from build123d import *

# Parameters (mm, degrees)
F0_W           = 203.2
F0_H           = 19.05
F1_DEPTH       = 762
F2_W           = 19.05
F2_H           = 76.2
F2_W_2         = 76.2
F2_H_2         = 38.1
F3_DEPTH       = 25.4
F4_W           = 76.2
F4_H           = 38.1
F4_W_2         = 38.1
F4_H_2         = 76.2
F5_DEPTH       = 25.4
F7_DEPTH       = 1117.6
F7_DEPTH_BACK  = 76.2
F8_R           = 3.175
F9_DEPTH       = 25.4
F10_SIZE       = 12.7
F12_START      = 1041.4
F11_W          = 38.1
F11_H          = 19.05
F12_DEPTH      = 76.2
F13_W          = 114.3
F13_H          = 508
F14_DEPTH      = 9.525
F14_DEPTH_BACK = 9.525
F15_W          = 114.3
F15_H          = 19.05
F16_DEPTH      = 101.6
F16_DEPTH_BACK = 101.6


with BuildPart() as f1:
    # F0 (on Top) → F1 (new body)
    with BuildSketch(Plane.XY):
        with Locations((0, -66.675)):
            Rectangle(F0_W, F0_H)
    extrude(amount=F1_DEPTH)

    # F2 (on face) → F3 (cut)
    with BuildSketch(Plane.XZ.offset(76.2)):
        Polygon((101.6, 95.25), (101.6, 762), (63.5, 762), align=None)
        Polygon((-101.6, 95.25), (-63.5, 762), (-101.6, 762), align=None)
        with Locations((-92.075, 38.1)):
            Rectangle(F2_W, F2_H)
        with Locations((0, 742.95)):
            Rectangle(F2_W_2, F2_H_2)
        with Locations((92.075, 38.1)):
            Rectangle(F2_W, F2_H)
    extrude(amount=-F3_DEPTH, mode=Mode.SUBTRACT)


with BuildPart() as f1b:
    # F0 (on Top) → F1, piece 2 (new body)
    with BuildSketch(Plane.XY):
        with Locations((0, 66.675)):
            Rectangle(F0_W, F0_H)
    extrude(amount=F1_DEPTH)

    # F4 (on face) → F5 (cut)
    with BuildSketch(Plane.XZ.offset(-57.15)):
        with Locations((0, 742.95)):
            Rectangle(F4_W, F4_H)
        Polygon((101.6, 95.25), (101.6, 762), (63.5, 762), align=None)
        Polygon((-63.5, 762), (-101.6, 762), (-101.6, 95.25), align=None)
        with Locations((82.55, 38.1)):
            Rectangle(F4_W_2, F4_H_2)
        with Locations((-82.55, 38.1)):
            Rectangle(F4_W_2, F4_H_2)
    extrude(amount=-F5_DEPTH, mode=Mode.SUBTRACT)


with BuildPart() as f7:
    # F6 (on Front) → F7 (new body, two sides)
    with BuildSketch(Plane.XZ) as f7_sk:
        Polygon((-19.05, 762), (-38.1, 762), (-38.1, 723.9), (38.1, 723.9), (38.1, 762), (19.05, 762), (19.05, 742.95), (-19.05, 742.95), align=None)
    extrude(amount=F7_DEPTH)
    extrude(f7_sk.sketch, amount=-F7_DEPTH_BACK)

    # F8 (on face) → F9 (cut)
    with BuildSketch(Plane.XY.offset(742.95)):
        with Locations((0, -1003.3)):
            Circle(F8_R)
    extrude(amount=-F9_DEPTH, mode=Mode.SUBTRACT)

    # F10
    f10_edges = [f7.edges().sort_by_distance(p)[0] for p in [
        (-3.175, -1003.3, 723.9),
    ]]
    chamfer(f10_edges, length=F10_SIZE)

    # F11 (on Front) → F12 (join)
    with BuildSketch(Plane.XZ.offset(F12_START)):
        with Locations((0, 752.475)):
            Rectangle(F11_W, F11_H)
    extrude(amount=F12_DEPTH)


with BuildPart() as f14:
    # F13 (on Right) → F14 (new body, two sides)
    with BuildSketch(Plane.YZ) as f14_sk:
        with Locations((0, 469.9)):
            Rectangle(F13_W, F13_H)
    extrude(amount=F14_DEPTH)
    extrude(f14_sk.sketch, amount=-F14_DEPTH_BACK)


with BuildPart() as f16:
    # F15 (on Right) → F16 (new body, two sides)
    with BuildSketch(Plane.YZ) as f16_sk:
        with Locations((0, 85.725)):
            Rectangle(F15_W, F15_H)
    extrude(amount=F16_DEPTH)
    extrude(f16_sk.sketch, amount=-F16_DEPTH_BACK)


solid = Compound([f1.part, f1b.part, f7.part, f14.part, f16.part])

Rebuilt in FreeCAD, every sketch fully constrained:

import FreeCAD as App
import Part
import Sketcher

V = App.Vector
Q = App.Units.Quantity


def edges_at(feature, points):
    """Names of the edges that pass closest to the given points."""
    edges = feature.Shape.Edges
    near = lambda p: min(range(len(edges)), key=lambda i: edges[i].distToShape(Part.Vertex(*p))[0])
    return sorted({f"Edge{near(p) + 1}" for p in points})


def add_polygon(sketch, points):
    """Adds a closed chain of lines whose ends are joined by coincident constraints."""
    first, n = sketch.GeometryCount, len(points)
    for a, b in zip(points, points[1:] + points[:1]):
        sketch.addGeometry(Part.LineSegment(App.Vector(*a, 0), App.Vector(*b, 0)), False)
    for i in range(n):
        sketch.addConstraint(Sketcher.Constraint("Coincident", first + i, 2, first + (i + 1) % n, 1))

doc = App.newDocument("Part")
body = doc.addObject("PartDesign::Body", "Body")

# Sketch on XY plane
sketch1 = body.newObject("Sketcher::SketchObject", "Sketch")
sketch1.AttachmentSupport = (doc.getObject("XY_Plane"), [""])
sketch1.MapMode = "FlatFace"
add_polygon(sketch1, [(-102, -57), (-102, -76), (102, -76), (102, -57)])  # lines 0-3
sketch1.addConstraint([
    Sketcher.Constraint("Vertical", 0),
    Sketcher.Constraint("Horizontal", 1),
    Sketcher.Constraint("Vertical", 2),
    Sketcher.Constraint("Horizontal", 3),
    Sketcher.Constraint("DistanceX", 1, 1, 1, 2, Q("8 in")),
    Sketcher.Constraint("DistanceX", 0, 2, -1, 1, Q("4 in")),
    Sketcher.Constraint("DistanceY", 0, 2, -1, 1, Q("3 in")),
    Sketcher.Constraint("DistanceY", 0, 2, 0, 1, Q("0.75 in")),
])
pad1 = body.newObject("PartDesign::Pad", "Pad")
pad1.Profile = sketch1
pad1.Length = Q("30 in")

# Sketch on XZ plane
sketch2 = body.newObject("Sketcher::SketchObject", "Sketch001")
sketch2.AttachmentSupport = (doc.getObject("XZ_Plane"), [""])
sketch2.MapMode = "FlatFace"
sketch2.AttachmentOffset = App.Placement(V(0, 0, 3 * 25.4), App.Rotation())
add_polygon(sketch2, [(102, 95), (102, 762), (64, 762)])  # lines 0-2
add_polygon(sketch2, [(-102, 95), (-64, 762), (-102, 762)])  # lines 3-5
add_polygon(sketch2, [(-102, 76), (-102, 0), (-83, 0), (-83, 76)])  # lines 6-9
add_polygon(sketch2, [(-38, 762), (-38, 724), (38, 724), (38, 762)])  # lines 10-13
add_polygon(sketch2, [(83, 76), (83, 0), (102, 0), (102, 76)])  # lines 14-17
sketch2.addConstraint([
    Sketcher.Constraint("Vertical", 0),
    Sketcher.Constraint("Horizontal", 1),
    Sketcher.Constraint("Horizontal", 4),
    Sketcher.Constraint("Vertical", 5),
    Sketcher.Constraint("Vertical", 6),
    Sketcher.Constraint("Horizontal", 7),
    Sketcher.Constraint("Vertical", 8),
    Sketcher.Constraint("Horizontal", 9),
    Sketcher.Constraint("Vertical", 10),
    Sketcher.Constraint("Horizontal", 11),
    Sketcher.Constraint("Vertical", 12),
    Sketcher.Constraint("Horizontal", 13),
    Sketcher.Constraint("Vertical", 14),
    Sketcher.Constraint("Horizontal", 15),
    Sketcher.Constraint("Vertical", 16),
    Sketcher.Constraint("Horizontal", 17),
    Sketcher.Constraint("Symmetric", 7, 2, 14, 2, -1, 1),
    Sketcher.Constraint("Symmetric", 1, 2, 3, 2, -2),
    Sketcher.Constraint("Symmetric", 2, 2, 5, 2, -2),
    Sketcher.Constraint("Symmetric", 6, 2, 15, 2, -2),
    Sketcher.Constraint("Horizontal", 4, 2, 12, 2),
    Sketcher.Constraint("Horizontal", 9, 2, 16, 2),
    Sketcher.Constraint("Vertical", 5, 2, 6, 2),
    Sketcher.Constraint("Equal", 13, 6),
    Sketcher.Constraint("Equal", 4, 10),
    Sketcher.Constraint("DistanceX", 11, 1, 11, 2, Q("3 in")),
    Sketcher.Constraint("DistanceX", 1, 2, 1, 1, Q("1.5 in")),
    Sketcher.Constraint("DistanceX", -1, 1, 0, 2, Q("4 in")),
    Sketcher.Constraint("DistanceY", -1, 1, 0, 2, Q("30 in")),
    Sketcher.Constraint("DistanceX", 3, 2, 10, 2, Q("1 in")),
    Sketcher.Constraint("DistanceX", 7, 1, 7, 2, Q("0.75 in")),
    Sketcher.Constraint("DistanceY", 0, 1, 0, 2, Q("26.25 in")),
])
pocket1 = body.newObject("PartDesign::Pocket", "Pocket")
pocket1.Profile = sketch2
pocket1.Length = Q("1 in")
body2 = doc.addObject("PartDesign::Body", "Body001")

# Sketch on XY plane
sketch3 = body2.newObject("Sketcher::SketchObject", "Sketch002")
sketch3.AttachmentSupport = (doc.getObject("XY_Plane001"), [""])
sketch3.MapMode = "FlatFace"
add_polygon(sketch3, [(-102, 76), (-102, 57), (102, 57), (102, 76)])  # lines 0-3
sketch3.addConstraint([
    Sketcher.Constraint("Vertical", 0),
    Sketcher.Constraint("Horizontal", 1),
    Sketcher.Constraint("Vertical", 2),
    Sketcher.Constraint("Horizontal", 3),
    Sketcher.Constraint("DistanceX", 1, 1, 1, 2, Q("8 in")),
    Sketcher.Constraint("DistanceX", 0, 2, -1, 1, Q("4 in")),
    Sketcher.Constraint("DistanceY", -1, 1, 2, 2, Q("3 in")),
    Sketcher.Constraint("DistanceY", 0, 2, 0, 1, Q("0.75 in")),
])
pad2 = body2.newObject("PartDesign::Pad", "Pad001")
pad2.Profile = sketch3
pad2.Length = Q("30 in")

# Sketch on XZ plane
sketch4 = body2.newObject("Sketcher::SketchObject", "Sketch003")
sketch4.AttachmentSupport = (doc.getObject("XZ_Plane001"), [""])
sketch4.MapMode = "FlatFace"
sketch4.AttachmentOffset = App.Placement(V(0, 0, -2.25 * 25.4), App.Rotation())
add_polygon(sketch4, [(-38, 762), (-38, 724), (38, 724), (38, 762)])  # lines 0-3
add_polygon(sketch4, [(102, 95), (102, 762), (64, 762)])  # lines 4-6
add_polygon(sketch4, [(-64, 762), (-102, 762), (-102, 95)])  # lines 7-9
add_polygon(sketch4, [(64, 76), (64, 0), (102, 0), (102, 76)])  # lines 10-13
add_polygon(sketch4, [(-102, 76), (-102, 0), (-64, 0), (-64, 76)])  # lines 14-17
sketch4.addConstraint([
    Sketcher.Constraint("Vertical", 0),
    Sketcher.Constraint("Horizontal", 1),
    Sketcher.Constraint("Vertical", 2),
    Sketcher.Constraint("Horizontal", 3),
    Sketcher.Constraint("Vertical", 4),
    Sketcher.Constraint("Horizontal", 5),
    Sketcher.Constraint("Horizontal", 7),
    Sketcher.Constraint("Vertical", 8),
    Sketcher.Constraint("Vertical", 10),
    Sketcher.Constraint("Horizontal", 11),
    Sketcher.Constraint("Vertical", 12),
    Sketcher.Constraint("Horizontal", 13),
    Sketcher.Constraint("Vertical", 14),
    Sketcher.Constraint("Horizontal", 15),
    Sketcher.Constraint("Vertical", 16),
    Sketcher.Constraint("Horizontal", 17),
    Sketcher.Constraint("Symmetric", 11, 2, 14, 2, -1, 1),
    Sketcher.Constraint("Symmetric", 4, 2, 7, 2, -2),
    Sketcher.Constraint("Symmetric", 10, 2, 15, 2, -2),
    Sketcher.Constraint("Horizontal", 3, 2, 4, 2),
    Sketcher.Constraint("Horizontal", 6, 2, 8, 2),
    Sketcher.Constraint("Horizontal", 13, 2, 16, 2),
    Sketcher.Constraint("Vertical", 5, 2, 10, 2),
    Sketcher.Constraint("Vertical", 6, 2, 11, 2),
    Sketcher.Constraint("Vertical", 9, 2, 15, 2),
    Sketcher.Constraint("Equal", 17, 0),
    Sketcher.Constraint("Equal", 3, 10),
    Sketcher.Constraint("DistanceX", 1, 1, 1, 2, Q("3 in")),
    Sketcher.Constraint("DistanceX", 5, 2, 5, 1, Q("1.5 in")),
    Sketcher.Constraint("DistanceY", -1, 1, 2, 2, Q("30 in")),
    Sketcher.Constraint("DistanceX", -1, 1, 4, 2, Q("4 in")),
    Sketcher.Constraint("DistanceX", 2, 2, 5, 2, Q("1 in")),
    Sketcher.Constraint("DistanceY", 4, 1, 4, 2, Q("26.25 in")),
])
pocket2 = body2.newObject("PartDesign::Pocket", "Pocket001")
pocket2.Profile = sketch4
pocket2.Length = Q("1 in")
body3 = doc.addObject("PartDesign::Body", "Body002")

# Sketch on XZ plane
sketch5 = body3.newObject("Sketcher::SketchObject", "Sketch004")
sketch5.AttachmentSupport = (doc.getObject("XZ_Plane002"), [""])
sketch5.MapMode = "FlatFace"
add_polygon(sketch5, [(-19, 762), (-38, 762), (-38, 724), (38, 724), (38, 762), (19, 762), (19, 743), (-19, 743)])  # lines 0-7
sketch5.addConstraint([
    Sketcher.Constraint("Horizontal", 0),
    Sketcher.Constraint("Vertical", 1),
    Sketcher.Constraint("Horizontal", 2),
    Sketcher.Constraint("Vertical", 3),
    Sketcher.Constraint("Horizontal", 4),
    Sketcher.Constraint("Vertical", 5),
    Sketcher.Constraint("Horizontal", 6),
    Sketcher.Constraint("Vertical", 7),
    Sketcher.Constraint("Symmetric", 0, 2, 3, 2, -2),
    Sketcher.Constraint("Equal", 0, 4),
    Sketcher.Constraint("Equal", 6, 1),
    Sketcher.Constraint("Equal", 4, 5),
    Sketcher.Constraint("DistanceX", 2, 1, 2, 2, Q("3 in")),
    Sketcher.Constraint("DistanceX", 6, 2, 6, 1, Q("1.5 in")),
    Sketcher.Constraint("DistanceY", -1, 1, 0, 2, Q("30 in")),
])
pad3 = body3.newObject("PartDesign::Pad", "Pad002")
pad3.Profile = sketch5
pad3.Type = "TwoLengths"
pad3.Length = Q("44 in")
pad3.Length2 = Q("3 in")

# Sketch on XY plane
sketch6 = body3.newObject("Sketcher::SketchObject", "Sketch005")
sketch6.AttachmentSupport = (doc.getObject("XY_Plane002"), [""])
sketch6.MapMode = "FlatFace"
sketch6.AttachmentOffset = App.Placement(V(0, 0, 29.25 * 25.4), App.Rotation())
sketch6.addGeometry(Part.Circle(V(0, -1003.3, 0), V(0, 0, 1), 3.2), False)
sketch6.addConstraint([
    Sketcher.Constraint("PointOnObject", 0, 3, -2),
    Sketcher.Constraint("Diameter", 0, Q("0.25 in")),
    Sketcher.Constraint("DistanceY", 0, 3, -1, 1, Q("39.5 in")),
])
pocket3 = body3.newObject("PartDesign::Pocket", "Pocket002")
pocket3.Profile = sketch6
pocket3.Length = Q("1 in")
doc.recompute()

chamfer = body3.newObject("PartDesign::Chamfer", "Chamfer")
chamfer.Base = (pocket3, edges_at(pocket3, [(-3.175, -1003.3, 723.9)]))
chamfer.Size = Q("0.5 in")

# Sketch on XZ plane
sketch7 = body3.newObject("Sketcher::SketchObject", "Sketch006")
sketch7.AttachmentSupport = (doc.getObject("XZ_Plane002"), [""])
sketch7.MapMode = "FlatFace"
sketch7.AttachmentOffset = App.Placement(V(0, 0, 41 * 25.4), App.Rotation())
add_polygon(sketch7, [(-19, 762), (-19, 743), (19, 743), (19, 762)])  # lines 0-3
sketch7.addConstraint([
    Sketcher.Constraint("Vertical", 0),
    Sketcher.Constraint("Horizontal", 1),
    Sketcher.Constraint("Vertical", 2),
    Sketcher.Constraint("Horizontal", 3),
    Sketcher.Constraint("DistanceX", 1, 1, 1, 2, Q("1.5 in")),
    Sketcher.Constraint("DistanceY", -1, 1, 2, 2, Q("30 in")),
    Sketcher.Constraint("DistanceY", 0, 2, 0, 1, Q("0.75 in")),
    Sketcher.Constraint("DistanceX", 0, 2, -1, 1, Q("0.75 in")),
])
pad4 = body3.newObject("PartDesign::Pad", "Pad003")
pad4.Profile = sketch7
pad4.Length = Q("3 in")
body4 = doc.addObject("PartDesign::Body", "Body003")

# Sketch on YZ plane
sketch8 = body4.newObject("Sketcher::SketchObject", "Sketch007")
sketch8.AttachmentSupport = (doc.getObject("YZ_Plane003"), [""])
sketch8.MapMode = "FlatFace"
add_polygon(sketch8, [(-57, 724), (-57, 216), (57, 216), (57, 724)])  # lines 0-3
sketch8.addConstraint([
    Sketcher.Constraint("Vertical", 0),
    Sketcher.Constraint("Horizontal", 1),
    Sketcher.Constraint("Vertical", 2),
    Sketcher.Constraint("Horizontal", 3),
    Sketcher.Constraint("DistanceY", 0, 2, 0, 1, Q("20 in")),
    Sketcher.Constraint("DistanceX", 1, 1, 1, 2, Q("4.5 in")),
    Sketcher.Constraint("DistanceY", -1, 1, 0, 2, Q("8.5 in")),
    Sketcher.Constraint("DistanceX", 0, 2, -1, 1, Q("2.25 in")),
])
pad5 = body4.newObject("PartDesign::Pad", "Pad004")
pad5.Profile = sketch8
pad5.Type = "TwoLengths"
pad5.Length = Q("0.375 in")
pad5.Length2 = Q("0.375 in")
body5 = doc.addObject("PartDesign::Body", "Body004")

# Sketch on YZ plane
sketch9 = body5.newObject("Sketcher::SketchObject", "Sketch008")
sketch9.AttachmentSupport = (doc.getObject("YZ_Plane004"), [""])
sketch9.MapMode = "FlatFace"
add_polygon(sketch9, [(-57, 95), (-57, 76), (57, 76), (57, 95)])  # lines 0-3
sketch9.addConstraint([
    Sketcher.Constraint("Vertical", 0),
    Sketcher.Constraint("Horizontal", 1),
    Sketcher.Constraint("Vertical", 2),
    Sketcher.Constraint("Horizontal", 3),
    Sketcher.Constraint("DistanceX", 1, 1, 1, 2, Q("4.5 in")),
    Sketcher.Constraint("DistanceY", -1, 1, 0, 2, Q("3 in")),
    Sketcher.Constraint("DistanceY", 0, 2, 0, 1, Q("0.75 in")),
    Sketcher.Constraint("DistanceX", 0, 2, -1, 1, Q("2.25 in")),
])
pad6 = body5.newObject("PartDesign::Pad", "Pad005")
pad6.Profile = sketch9
pad6.Type = "TwoLengths"
pad6.Length = Q("4 in")
pad6.Length2 = Q("4 in")

doc.recompute()
